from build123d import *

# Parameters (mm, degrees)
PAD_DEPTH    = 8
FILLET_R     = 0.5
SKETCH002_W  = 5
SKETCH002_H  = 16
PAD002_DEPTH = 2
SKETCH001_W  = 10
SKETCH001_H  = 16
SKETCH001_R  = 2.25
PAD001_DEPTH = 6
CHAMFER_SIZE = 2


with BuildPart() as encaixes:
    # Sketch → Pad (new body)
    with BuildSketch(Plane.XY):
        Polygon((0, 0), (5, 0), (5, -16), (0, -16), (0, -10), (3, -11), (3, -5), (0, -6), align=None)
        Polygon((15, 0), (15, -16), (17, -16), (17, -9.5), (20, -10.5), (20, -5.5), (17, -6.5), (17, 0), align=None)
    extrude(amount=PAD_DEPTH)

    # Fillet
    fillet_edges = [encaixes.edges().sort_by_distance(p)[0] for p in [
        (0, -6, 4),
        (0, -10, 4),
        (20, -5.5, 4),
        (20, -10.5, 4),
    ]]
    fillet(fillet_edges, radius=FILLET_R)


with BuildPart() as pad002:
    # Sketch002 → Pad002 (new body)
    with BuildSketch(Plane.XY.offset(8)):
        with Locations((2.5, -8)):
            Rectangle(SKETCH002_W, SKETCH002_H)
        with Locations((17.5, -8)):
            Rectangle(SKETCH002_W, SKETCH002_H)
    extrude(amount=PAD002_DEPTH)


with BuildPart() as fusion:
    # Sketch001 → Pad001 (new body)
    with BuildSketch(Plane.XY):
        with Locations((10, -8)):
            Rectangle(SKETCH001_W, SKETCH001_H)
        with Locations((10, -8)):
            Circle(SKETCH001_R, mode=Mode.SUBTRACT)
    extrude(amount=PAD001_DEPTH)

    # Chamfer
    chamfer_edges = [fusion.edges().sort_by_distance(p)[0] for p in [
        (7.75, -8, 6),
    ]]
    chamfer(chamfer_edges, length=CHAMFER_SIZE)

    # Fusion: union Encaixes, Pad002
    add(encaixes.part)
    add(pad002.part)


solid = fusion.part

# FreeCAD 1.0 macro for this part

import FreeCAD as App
import Part
import Sketcher


def edges_at(feature, points):
    """Names of the edges that pass closest to the given points."""
    edges = feature.Shape.Edges
    near = lambda p: min(range(len(edges)), key=lambda i: edges[i].distToShape(Part.Vertex(*p))[0])
    return sorted({f"Edge{near(p) + 1}" for p in points})

doc = App.newDocument("Part")
params = doc.addObject("Spreadsheet::Sheet", "Params")
for row, (alias, value) in enumerate([
    ("sketch1_width", "5 mm"),
    ("sketch1_width2", "2 mm"),
    ("sketch1_height", "6 mm"),
    ("sketch1_height2", "16 mm"),
    ("pad1_length", "8 mm"),
    ("fillet_radius", "0.5 mm"),
    ("sketch2_width", "5 mm"),
    ("sketch2_height", "16 mm"),
    ("pad2_length", "2 mm"),
    ("sketch3_diameter", "4.5 mm"),
    ("sketch3_width", "10 mm"),
    ("sketch3_height", "16 mm"),
    ("pad3_length", "6 mm"),
    ("chamfer_size", "2 mm"),
], start=1):
    params.set(f"A{row}", alias)
    params.set(f"B{row}", "=" + value)
    params.setAlias(f"B{row}", alias)

body = doc.addObject("PartDesign::Body", "Body")
body.AllowCompound = True

sketch1 = body.newObject("Sketcher::SketchObject", "Sketch")
sketch1.AttachmentSupport = (doc.getObject("XY_Plane"), [""])
sketch1.MapMode = "FlatFace"
sketch1.addGeometry([
    Part.LineSegment(App.Vector(5, 0, 0), App.Vector(0, 0, 0)),
    Part.LineSegment(App.Vector(0, 0, 0), App.Vector(0, -6, 0)),
    Part.LineSegment(App.Vector(0, -6, 0), App.Vector(3, -5, 0)),
    Part.LineSegment(App.Vector(3, -5, 0), App.Vector(3, -11, 0)),
    Part.LineSegment(App.Vector(3, -11, 0), App.Vector(0, -10, 0)),
    Part.LineSegment(App.Vector(0, -10, 0), App.Vector(0, -16, 0)),
    Part.LineSegment(App.Vector(0, -16, 0), App.Vector(5, -16, 0)),
    Part.LineSegment(App.Vector(5, -16, 0), App.Vector(5, 0, 0)),
    Part.LineSegment(App.Vector(15, 0, 0), App.Vector(15, -16, 0)),
    Part.LineSegment(App.Vector(15, -16, 0), App.Vector(17, -16, 0)),
    Part.LineSegment(App.Vector(17, -16, 0), App.Vector(17, -9.5, 0)),
    Part.LineSegment(App.Vector(17, -9.5, 0), App.Vector(20, -10.5, 0)),
    Part.LineSegment(App.Vector(20, -10.5, 0), App.Vector(20, -5.5, 0)),
    Part.LineSegment(App.Vector(20, -5.5, 0), App.Vector(17, -6.5, 0)),
    Part.LineSegment(App.Vector(17, -6.5, 0), App.Vector(17, 0, 0)),
    Part.LineSegment(App.Vector(17, 0, 0), App.Vector(15, 0, 0)),
], False)
sketch1.addConstraint([
    Sketcher.Constraint("Coincident", 0, 2, 1, 1),
    Sketcher.Constraint("Coincident", 1, 2, 2, 1),
    Sketcher.Constraint("Coincident", 2, 2, 3, 1),
    Sketcher.Constraint("Coincident", 3, 2, 4, 1),
    Sketcher.Constraint("Coincident", 4, 2, 5, 1),
    Sketcher.Constraint("Coincident", 5, 2, 6, 1),
    Sketcher.Constraint("Coincident", 6, 2, 7, 1),
    Sketcher.Constraint("Coincident", 7, 2, 0, 1),
    Sketcher.Constraint("Coincident", 8, 2, 9, 1),
    Sketcher.Constraint("Coincident", 9, 2, 10, 1),
    Sketcher.Constraint("Coincident", 10, 2, 11, 1),
    Sketcher.Constraint("Coincident", 11, 2, 12, 1),
    Sketcher.Constraint("Coincident", 12, 2, 13, 1),
    Sketcher.Constraint("Coincident", 13, 2, 14, 1),
    Sketcher.Constraint("Coincident", 14, 2, 15, 1),
    Sketcher.Constraint("Coincident", 15, 2, 8, 1),
    Sketcher.Constraint("Horizontal", 0),
    Sketcher.Constraint("Vertical", 1),
    Sketcher.Constraint("Vertical", 3),
    Sketcher.Constraint("Vertical", 5),
    Sketcher.Constraint("Horizontal", 6),
    Sketcher.Constraint("Vertical", 7),
    Sketcher.Constraint("Vertical", 8),
    Sketcher.Constraint("Horizontal", 9),
    Sketcher.Constraint("Vertical", 10),
    Sketcher.Constraint("Vertical", 12),
    Sketcher.Constraint("Vertical", 14),
    Sketcher.Constraint("Horizontal", 15),
    Sketcher.Constraint("Coincident", 0, 2, -1, 1),
    Sketcher.Constraint("PointOnObject", 4, 2, -2),
    Sketcher.Constraint("PointOnObject", 14, 2, -1),
    Sketcher.Constraint("Parallel", 4, 11),
    Sketcher.Constraint("Parallel", 2, 13),
    Sketcher.Constraint("Horizontal", 6, 2, 8, 2),
    Sketcher.Constraint("Vertical", 10, 2, 13, 2),
    Sketcher.Constraint("Equal", 1, 3),
    Sketcher.Constraint("Equal", 3, 5),
    Sketcher.Constraint("Equal", 6, 12),
    Sketcher.Constraint("Equal", 10, 14),
    Sketcher.Constraint("Equal", 2, 4),
    Sketcher.Constraint("Equal", 4, 11),
    Sketcher.Constraint("DistanceX", 0, 2, 0, 1, 5.0),
    Sketcher.Constraint("DistanceX", 9, 1, 9, 2, 2.0),
    Sketcher.Constraint("DistanceY", 1, 2, 1, 1, 6.0),
    Sketcher.Constraint("DistanceY", 7, 1, 7, 2, 16.0),
    Sketcher.Constraint("DistanceX", -1, 1, 2, 2, 3.0),
    Sketcher.Constraint("DistanceX", -1, 1, 8, 2, 15.0),
])
sketch1.setExpression("Constraints[41]", "Params.sketch1_width")
sketch1.setExpression("Constraints[42]", "Params.sketch1_width2")
sketch1.setExpression("Constraints[43]", "Params.sketch1_height")
sketch1.setExpression("Constraints[44]", "Params.sketch1_height2")
pad1 = body.newObject("PartDesign::Pad", "Pad")
pad1.Profile = sketch1
pad1.setExpression("Length", "Params.pad1_length")
doc.recompute()

fillet = body.newObject("PartDesign::Fillet", "Fillet")
fillet.Base = (pad1, edges_at(pad1, [
    (0, -6, 4),
    (0, -10, 4),
    (20, -5.5, 4),
    (20, -10.5, 4),
]))
fillet.setExpression("Radius", "Params.fillet_radius")
body2 = doc.addObject("PartDesign::Body", "Body001")
body2.AllowCompound = True

sketch2 = body2.newObject("Sketcher::SketchObject", "Sketch001")
sketch2.AttachmentSupport = (doc.getObject("XY_Plane001"), [""])
sketch2.MapMode = "FlatFace"
sketch2.AttachmentOffset = App.Placement(App.Vector(0, 0, 8), App.Rotation())
sketch2.addGeometry([
    Part.LineSegment(App.Vector(0, 0, 0), App.Vector(0, -16, 0)),
    Part.LineSegment(App.Vector(0, -16, 0), App.Vector(5, -16, 0)),
    Part.LineSegment(App.Vector(5, -16, 0), App.Vector(5, 0, 0)),
    Part.LineSegment(App.Vector(5, 0, 0), App.Vector(0, 0, 0)),
    Part.LineSegment(App.Vector(15, 0, 0), App.Vector(15, -16, 0)),
    Part.LineSegment(App.Vector(15, -16, 0), App.Vector(20, -16, 0)),
    Part.LineSegment(App.Vector(20, -16, 0), App.Vector(20, 0, 0)),
    Part.LineSegment(App.Vector(20, 0, 0), App.Vector(15, 0, 0)),
], False)
sketch2.addConstraint([
    Sketcher.Constraint("Coincident", 0, 2, 1, 1),
    Sketcher.Constraint("Coincident", 1, 2, 2, 1),
    Sketcher.Constraint("Coincident", 2, 2, 3, 1),
    Sketcher.Constraint("Coincident", 3, 2, 0, 1),
    Sketcher.Constraint("Coincident", 4, 2, 5, 1),
    Sketcher.Constraint("Coincident", 5, 2, 6, 1),
    Sketcher.Constraint("Coincident", 6, 2, 7, 1),
    Sketcher.Constraint("Coincident", 7, 2, 4, 1),
    Sketcher.Constraint("Vertical", 0),
    Sketcher.Constraint("Horizontal", 1),
    Sketcher.Constraint("Vertical", 2),
    Sketcher.Constraint("Horizontal", 3),
    Sketcher.Constraint("Vertical", 4),
    Sketcher.Constraint("Horizontal", 5),
    Sketcher.Constraint("Vertical", 6),
    Sketcher.Constraint("Horizontal", 7),
    Sketcher.Constraint("Coincident", 3, 2, -1, 1),
    Sketcher.Constraint("PointOnObject", 6, 2, -1),
    Sketcher.Constraint("Horizontal", 1, 2, 4, 2),
    Sketcher.Constraint("Equal", 3, 5),
    Sketcher.Constraint("DistanceX", 1, 1, 1, 2, 5.0),
    Sketcher.Constraint("DistanceY", 0, 2, 0, 1, 16.0),
    Sketcher.Constraint("DistanceX", -1, 1, 4, 2, 15.0),
])
sketch2.setExpression("Constraints[20]", "Params.sketch2_width")
sketch2.setExpression("Constraints[21]", "Params.sketch2_height")
pad2 = body2.newObject("PartDesign::Pad", "Pad001")
pad2.Profile = sketch2
pad2.setExpression("Length", "Params.pad2_length")
body3 = doc.addObject("PartDesign::Body", "Body002")

sketch3 = body3.newObject("Sketcher::SketchObject", "Sketch002")
sketch3.AttachmentSupport = (doc.getObject("XY_Plane002"), [""])
sketch3.MapMode = "FlatFace"
sketch3.addGeometry([
    Part.LineSegment(App.Vector(5, 0, 0), App.Vector(5, -16, 0)),
    Part.LineSegment(App.Vector(5, -16, 0), App.Vector(15, -16, 0)),
    Part.LineSegment(App.Vector(15, -16, 0), App.Vector(15, 0, 0)),
    Part.LineSegment(App.Vector(15, 0, 0), App.Vector(5, 0, 0)),
    Part.Circle(App.Vector(10, -8, 0), App.Vector(0, 0, 1), 2.25),
], False)
sketch3.addConstraint([
    Sketcher.Constraint("Coincident", 0, 2, 1, 1),
    Sketcher.Constraint("Coincident", 1, 2, 2, 1),
    Sketcher.Constraint("Coincident", 2, 2, 3, 1),
    Sketcher.Constraint("Coincident", 3, 2, 0, 1),
    Sketcher.Constraint("Vertical", 0),
    Sketcher.Constraint("Horizontal", 1),
    Sketcher.Constraint("Vertical", 2),
    Sketcher.Constraint("Horizontal", 3),
    Sketcher.Constraint("PointOnObject", 2, 2, -1),
    Sketcher.Constraint("Diameter", 4, 4.5),
    Sketcher.Constraint("DistanceX", 1, 1, 1, 2, 10.0),
    Sketcher.Constraint("DistanceY", 0, 2, 0, 1, 16.0),
    Sketcher.Constraint("DistanceX", -1, 1, 4, 3, 10.0),
    Sketcher.Constraint("DistanceY", 4, 3, -1, 1, 8.0),
    Sketcher.Constraint("DistanceX", -1, 1, 0, 2, 5.0),
])
sketch3.setExpression("Constraints[9]", "Params.sketch3_diameter")
sketch3.setExpression("Constraints[10]", "Params.sketch3_width")
sketch3.setExpression("Constraints[11]", "Params.sketch3_height")
pad3 = body3.newObject("PartDesign::Pad", "Pad002")
pad3.Profile = sketch3
pad3.setExpression("Length", "Params.pad3_length")
doc.recompute()

chamfer = body3.newObject("PartDesign::Chamfer", "Chamfer")
chamfer.Base = (pad3, edges_at(pad3, [(7.75, -8, 6)]))
chamfer.setExpression("Size", "Params.chamfer_size")
doc.recompute()

boolean = body3.newObject("PartDesign::Boolean", "Boolean")
boolean.Type = "Fuse"
boolean.addObjects([body])
doc.recompute()

boolean2 = body3.newObject("PartDesign::Boolean", "Boolean001")
boolean2.Type = "Fuse"
boolean2.addObjects([body2])

doc.recompute()
